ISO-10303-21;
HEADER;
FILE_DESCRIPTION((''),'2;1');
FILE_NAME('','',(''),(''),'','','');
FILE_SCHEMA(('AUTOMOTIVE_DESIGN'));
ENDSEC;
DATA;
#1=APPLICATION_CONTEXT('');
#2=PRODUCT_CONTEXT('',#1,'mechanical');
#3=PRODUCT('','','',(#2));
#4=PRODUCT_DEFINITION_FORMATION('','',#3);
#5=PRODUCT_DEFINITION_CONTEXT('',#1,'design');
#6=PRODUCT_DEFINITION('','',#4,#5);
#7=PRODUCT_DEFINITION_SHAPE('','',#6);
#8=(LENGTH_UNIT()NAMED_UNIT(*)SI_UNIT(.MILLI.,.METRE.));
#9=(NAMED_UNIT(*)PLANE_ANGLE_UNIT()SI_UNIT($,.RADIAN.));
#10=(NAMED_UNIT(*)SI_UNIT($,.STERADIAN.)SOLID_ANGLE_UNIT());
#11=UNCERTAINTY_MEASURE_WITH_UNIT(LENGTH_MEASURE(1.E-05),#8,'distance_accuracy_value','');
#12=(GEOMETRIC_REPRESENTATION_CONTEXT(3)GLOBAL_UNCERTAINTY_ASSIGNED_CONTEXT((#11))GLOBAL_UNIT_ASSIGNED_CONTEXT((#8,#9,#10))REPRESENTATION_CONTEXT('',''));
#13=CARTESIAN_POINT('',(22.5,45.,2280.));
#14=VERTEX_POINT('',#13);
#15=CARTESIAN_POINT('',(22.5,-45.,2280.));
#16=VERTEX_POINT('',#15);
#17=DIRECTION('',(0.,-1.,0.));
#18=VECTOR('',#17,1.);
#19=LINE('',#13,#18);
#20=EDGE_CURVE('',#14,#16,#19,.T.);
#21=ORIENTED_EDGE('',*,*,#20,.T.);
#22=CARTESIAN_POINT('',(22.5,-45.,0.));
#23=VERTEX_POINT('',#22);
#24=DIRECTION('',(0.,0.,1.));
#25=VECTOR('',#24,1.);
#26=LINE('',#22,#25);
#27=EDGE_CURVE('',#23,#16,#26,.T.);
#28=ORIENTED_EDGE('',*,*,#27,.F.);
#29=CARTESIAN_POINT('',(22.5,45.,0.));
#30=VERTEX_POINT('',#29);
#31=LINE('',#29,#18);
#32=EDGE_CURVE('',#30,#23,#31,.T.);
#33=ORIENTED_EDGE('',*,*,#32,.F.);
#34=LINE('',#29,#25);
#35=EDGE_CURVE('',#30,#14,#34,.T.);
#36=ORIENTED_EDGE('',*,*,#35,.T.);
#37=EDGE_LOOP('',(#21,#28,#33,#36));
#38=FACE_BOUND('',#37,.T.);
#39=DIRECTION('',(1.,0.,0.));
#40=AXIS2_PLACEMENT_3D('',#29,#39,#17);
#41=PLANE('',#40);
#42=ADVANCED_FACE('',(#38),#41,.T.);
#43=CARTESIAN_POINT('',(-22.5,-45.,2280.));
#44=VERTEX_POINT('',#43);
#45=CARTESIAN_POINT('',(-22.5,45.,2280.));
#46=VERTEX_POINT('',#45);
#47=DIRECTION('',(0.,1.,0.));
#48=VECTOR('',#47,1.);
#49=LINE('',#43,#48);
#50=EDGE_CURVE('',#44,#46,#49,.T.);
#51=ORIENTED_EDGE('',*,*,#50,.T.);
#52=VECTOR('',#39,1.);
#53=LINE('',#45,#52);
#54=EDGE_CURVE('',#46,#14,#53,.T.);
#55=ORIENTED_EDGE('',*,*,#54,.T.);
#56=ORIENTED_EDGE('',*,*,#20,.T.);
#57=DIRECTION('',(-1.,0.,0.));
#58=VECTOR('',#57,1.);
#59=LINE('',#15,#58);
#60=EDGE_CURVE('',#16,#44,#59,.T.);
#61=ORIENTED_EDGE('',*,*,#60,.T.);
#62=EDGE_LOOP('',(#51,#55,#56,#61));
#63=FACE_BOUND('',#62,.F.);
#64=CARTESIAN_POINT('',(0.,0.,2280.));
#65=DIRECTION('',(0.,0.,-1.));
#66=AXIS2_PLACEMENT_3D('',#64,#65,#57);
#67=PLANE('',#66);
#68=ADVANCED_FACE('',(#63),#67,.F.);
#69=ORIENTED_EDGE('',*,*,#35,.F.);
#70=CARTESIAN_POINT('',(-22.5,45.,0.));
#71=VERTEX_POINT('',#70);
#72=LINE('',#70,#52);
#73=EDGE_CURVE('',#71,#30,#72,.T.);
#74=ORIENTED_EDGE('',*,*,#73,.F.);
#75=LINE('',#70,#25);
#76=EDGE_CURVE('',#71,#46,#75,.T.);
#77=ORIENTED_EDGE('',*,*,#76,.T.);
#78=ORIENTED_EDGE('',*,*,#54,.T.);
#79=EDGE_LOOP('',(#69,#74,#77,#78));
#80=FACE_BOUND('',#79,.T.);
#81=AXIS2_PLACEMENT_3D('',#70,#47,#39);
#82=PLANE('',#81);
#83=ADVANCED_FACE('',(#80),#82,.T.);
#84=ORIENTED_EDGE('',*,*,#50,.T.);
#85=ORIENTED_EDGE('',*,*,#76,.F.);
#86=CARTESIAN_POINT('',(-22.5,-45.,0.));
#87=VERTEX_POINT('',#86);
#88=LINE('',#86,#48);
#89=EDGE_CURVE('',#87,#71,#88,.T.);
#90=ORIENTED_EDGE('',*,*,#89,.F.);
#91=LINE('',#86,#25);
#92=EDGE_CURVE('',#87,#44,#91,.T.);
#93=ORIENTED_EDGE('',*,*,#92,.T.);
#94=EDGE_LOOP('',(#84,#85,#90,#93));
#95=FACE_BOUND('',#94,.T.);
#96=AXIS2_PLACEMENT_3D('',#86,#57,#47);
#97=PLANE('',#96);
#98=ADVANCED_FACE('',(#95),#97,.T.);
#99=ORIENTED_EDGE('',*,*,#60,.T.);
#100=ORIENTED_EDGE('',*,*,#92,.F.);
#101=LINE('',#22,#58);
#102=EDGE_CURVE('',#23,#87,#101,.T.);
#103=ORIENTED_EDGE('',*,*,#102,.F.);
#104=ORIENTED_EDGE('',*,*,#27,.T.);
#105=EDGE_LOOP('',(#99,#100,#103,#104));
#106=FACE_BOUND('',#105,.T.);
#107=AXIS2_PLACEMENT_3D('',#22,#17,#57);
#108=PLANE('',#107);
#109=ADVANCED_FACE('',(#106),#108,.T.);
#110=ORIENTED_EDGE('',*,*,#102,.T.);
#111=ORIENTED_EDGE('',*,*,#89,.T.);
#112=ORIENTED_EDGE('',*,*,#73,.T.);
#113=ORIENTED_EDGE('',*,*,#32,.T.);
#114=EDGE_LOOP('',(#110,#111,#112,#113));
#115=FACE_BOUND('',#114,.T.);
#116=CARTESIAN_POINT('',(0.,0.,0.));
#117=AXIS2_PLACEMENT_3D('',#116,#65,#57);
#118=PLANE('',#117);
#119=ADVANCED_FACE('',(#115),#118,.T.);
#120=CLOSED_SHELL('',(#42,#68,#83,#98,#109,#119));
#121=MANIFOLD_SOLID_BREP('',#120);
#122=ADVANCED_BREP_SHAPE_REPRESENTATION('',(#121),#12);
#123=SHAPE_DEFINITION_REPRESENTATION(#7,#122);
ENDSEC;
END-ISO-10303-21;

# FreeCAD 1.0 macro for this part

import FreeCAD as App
import Part
import Sketcher
from FreeCAD import Vector


def add_polygon(sketch, points):
    """Adds a closed chain of lines whose ends are joined by coincident constraints."""
    first, n = sketch.GeometryCount, len(points)
    for a, b in zip(points, points[1:] + points[:1]):
        sketch.addGeometry(Part.LineSegment(App.Vector(*a, 0), App.Vector(*b, 0)), False)
    for i in range(n):
        sketch.addConstraint(Sketcher.Constraint("Coincident", first + i, 2, first + (i + 1) % n, 1))

doc = App.newDocument("Part")
params = doc.addObject("Spreadsheet::Sheet", "Params")
for row, (alias, value) in enumerate([
    ("sketch1_width", "45 mm"),
    ("sketch1_height", "90 mm"),
    ("pad1_length", "2280 mm"),
], start=1):
    params.set(f"A{row}", alias)
    params.set(f"B{row}", "=" + value)
    params.setAlias(f"B{row}", alias)

body = doc.addObject("PartDesign::Body", "Body")

# Sketch on XY plane
sketch1 = body.newObject("Sketcher::SketchObject", "Sketch")
sketch1.AttachmentSupport = (doc.getObject("XY_Plane"), [""])
sketch1.MapMode = "FlatFace"
add_polygon(sketch1, [(22, 45), (22, -45), (-22, -45), (-22, 45)])  # lines 0-3
sketch1.addConstraint(Sketcher.Constraint("Vertical", 0))
sketch1.addConstraint(Sketcher.Constraint("Horizontal", 1))
sketch1.addConstraint(Sketcher.Constraint("Vertical", 2))
sketch1.addConstraint(Sketcher.Constraint("Horizontal", 3))
sketch1.addConstraint(Sketcher.Constraint("Symmetric", 0, 2, 2, 2, -1, 1))
sketch1.addConstraint(Sketcher.Constraint("DistanceX", 1, 2, 1, 1, 45.0))
sketch1.addConstraint(Sketcher.Constraint("DistanceY", 0, 2, 0, 1, 90.0))
sketch1.setExpression("Constraints[9]", "Params.sketch1_width")
sketch1.setExpression("Constraints[10]", "Params.sketch1_height")
pad1 = body.newObject("PartDesign::Pad", "Pad")
pad1.Profile = sketch1
pad1.setExpression("Length", "Params.pad1_length")

doc.recompute()
